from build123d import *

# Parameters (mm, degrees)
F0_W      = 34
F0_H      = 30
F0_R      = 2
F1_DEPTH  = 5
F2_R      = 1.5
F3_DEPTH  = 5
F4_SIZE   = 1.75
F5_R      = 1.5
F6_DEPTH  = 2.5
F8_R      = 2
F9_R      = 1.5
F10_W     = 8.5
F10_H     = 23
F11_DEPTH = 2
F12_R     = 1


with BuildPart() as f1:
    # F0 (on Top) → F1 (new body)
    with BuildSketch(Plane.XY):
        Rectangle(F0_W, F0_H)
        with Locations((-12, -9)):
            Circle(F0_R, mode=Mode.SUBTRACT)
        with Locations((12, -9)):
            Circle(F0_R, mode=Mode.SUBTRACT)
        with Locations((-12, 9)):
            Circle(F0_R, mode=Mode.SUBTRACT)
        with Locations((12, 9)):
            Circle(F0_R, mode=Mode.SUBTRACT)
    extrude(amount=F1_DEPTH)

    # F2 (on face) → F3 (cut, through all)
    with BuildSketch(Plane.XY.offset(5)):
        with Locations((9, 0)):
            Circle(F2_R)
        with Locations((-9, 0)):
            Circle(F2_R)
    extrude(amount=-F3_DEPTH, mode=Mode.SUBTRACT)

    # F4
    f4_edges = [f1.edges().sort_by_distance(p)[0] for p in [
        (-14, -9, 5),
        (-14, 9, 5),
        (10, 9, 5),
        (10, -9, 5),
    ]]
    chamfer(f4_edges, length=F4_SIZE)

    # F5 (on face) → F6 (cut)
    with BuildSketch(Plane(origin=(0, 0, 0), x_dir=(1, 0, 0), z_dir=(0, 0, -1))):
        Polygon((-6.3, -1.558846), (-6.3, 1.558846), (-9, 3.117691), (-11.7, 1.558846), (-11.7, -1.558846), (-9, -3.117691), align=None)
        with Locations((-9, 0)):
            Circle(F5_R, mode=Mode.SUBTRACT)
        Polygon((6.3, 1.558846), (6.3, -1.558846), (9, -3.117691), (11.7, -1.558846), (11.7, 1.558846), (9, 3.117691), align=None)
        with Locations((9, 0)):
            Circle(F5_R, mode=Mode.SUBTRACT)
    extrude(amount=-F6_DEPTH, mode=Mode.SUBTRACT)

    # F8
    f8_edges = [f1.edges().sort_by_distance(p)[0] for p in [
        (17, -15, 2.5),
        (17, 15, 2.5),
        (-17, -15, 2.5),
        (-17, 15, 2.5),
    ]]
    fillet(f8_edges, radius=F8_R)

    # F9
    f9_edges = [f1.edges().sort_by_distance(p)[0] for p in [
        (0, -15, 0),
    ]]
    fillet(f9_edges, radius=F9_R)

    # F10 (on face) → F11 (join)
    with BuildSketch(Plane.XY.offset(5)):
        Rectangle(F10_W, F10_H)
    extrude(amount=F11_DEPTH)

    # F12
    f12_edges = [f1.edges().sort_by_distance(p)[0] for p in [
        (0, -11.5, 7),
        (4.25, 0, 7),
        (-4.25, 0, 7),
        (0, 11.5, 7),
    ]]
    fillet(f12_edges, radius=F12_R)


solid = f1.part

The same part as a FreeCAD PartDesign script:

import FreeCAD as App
import Part
import Sketcher
Q = App.Units.Quantity


def edges_at(feature, points):
    """Names of the edges that pass closest to the given points."""
    edges = feature.Shape.Edges
    near = lambda p: min(range(len(edges)), key=lambda i: edges[i].distToShape(Part.Vertex(*p))[0])
    return sorted({f"Edge{near(p) + 1}" for p in points})

doc = App.newDocument("Part")
body = doc.addObject("PartDesign::Body", "Body")

# Sketch on XY plane
sketch1 = doc.addObject("Sketcher::SketchObject", "Sketch")
body.addObject(sketch1)
sketch1.AttachmentSupport = (doc.XY_Plane, [""])
sketch1.MapMode = "FlatFace"
sketch1.addGeometry([
    Part.LineSegment(App.Vector(-17, 15, 0), App.Vector(-17, -15, 0)),  # 0
    Part.LineSegment(App.Vector(-17, -15, 0), App.Vector(17, -15, 0)),  # 1
    Part.LineSegment(App.Vector(17, -15, 0), App.Vector(17, 15, 0)),  # 2
    Part.LineSegment(App.Vector(17, 15, 0), App.Vector(-17, 15, 0)),  # 3
    Part.Circle(App.Vector(-12, -9, 0), App.Vector(0, 0, 1), 2),  # 4
    Part.Circle(App.Vector(12, -9, 0), App.Vector(0, 0, 1), 2),  # 5
    Part.Circle(App.Vector(-12, 9, 0), App.Vector(0, 0, 1), 2),  # 6
    Part.Circle(App.Vector(12, 9, 0), App.Vector(0, 0, 1), 2),  # 7
], False)
sketch1.addConstraint([
    Sketcher.Constraint("Coincident", 0, 2, 1, 1),
    Sketcher.Constraint("Coincident", 1, 2, 2, 1),
    Sketcher.Constraint("Coincident", 2, 2, 3, 1),
    Sketcher.Constraint("Coincident", 3, 2, 0, 1),
    Sketcher.Constraint("Vertical", 0),
    Sketcher.Constraint("Horizontal", 1),
    Sketcher.Constraint("Vertical", 2),
    Sketcher.Constraint("Horizontal", 3),
    Sketcher.Constraint("Equal", 4, 5),
    Sketcher.Constraint("Equal", 5, 6),
    Sketcher.Constraint("Equal", 6, 7),
    Sketcher.Constraint("Symmetric", 5, 3, 6, 3, -1, 1),
    Sketcher.Constraint("Symmetric", 4, 3, 7, 3, -1, 1),
    Sketcher.Constraint("Symmetric", 0, 2, 2, 2, -1, 1),
    Sketcher.Constraint("Symmetric", 4, 3, 5, 3, -2),
    Sketcher.Constraint("Diameter", 4, 4.0),
    Sketcher.Constraint("DistanceX", 1, 1, 1, 2, 34.0),
    Sketcher.Constraint("DistanceY", 0, 2, 0, 1, 30.0),
    Sketcher.Constraint("DistanceX", 4, 3, -1, 1, 12.0),
    Sketcher.Constraint("DistanceY", 4, 3, -1, 1, 9.0),
])
pad1 = doc.addObject("PartDesign::Pad", "Pad")
body.addObject(pad1)
pad1.Profile = sketch1
pad1.Length = 5

# Sketch on XY plane
sketch2 = doc.addObject("Sketcher::SketchObject", "Sketch001")
body.addObject(sketch2)
sketch2.AttachmentSupport = (doc.XY_Plane, [""])
sketch2.MapMode = "FlatFace"
sketch2.AttachmentOffset = App.Placement(App.Vector(0, 0, 5), App.Rotation())
sketch2.addGeometry([
    Part.Circle(App.Vector(9, 0, 0), App.Vector(0, 0, 1), 1.5),
    Part.Circle(App.Vector(-9, 0, 0), App.Vector(0, 0, 1), 1.5),
], False)
sketch2.addConstraint([
    Sketcher.Constraint("Equal", 0, 1),
    Sketcher.Constraint("Symmetric", 0, 3, 1, 3, -1, 1),
    Sketcher.Constraint("PointOnObject", 0, 3, -1),
    Sketcher.Constraint("Diameter", 0, 3.0),
    Sketcher.Constraint("DistanceX", -1, 1, 0, 3, 9.0),
])
pocket1 = doc.addObject("PartDesign::Pocket", "Pocket")
body.addObject(pocket1)
pocket1.Profile = sketch2
pocket1.Type = "ThroughAll"
doc.recompute()

chamfer = doc.addObject("PartDesign::Chamfer", "Chamfer")
body.addObject(chamfer)
chamfer.Base = (pocket1, edges_at(pocket1, [
    (-14, -9, 5),
    (-14, 9, 5),
    (10, 9, 5),
    (10, -9, 5),
]))
chamfer.Size = 1.75

# Sketch on XY plane
sketch3 = doc.addObject("Sketcher::SketchObject", "Sketch002")
body.addObject(sketch3)
sketch3.AttachmentSupport = (doc.XY_Plane, [""])
sketch3.MapMode = "FlatFace"
sketch3.addGeometry([
    Part.LineSegment(App.Vector(-6.3, 1.6, 0), App.Vector(-6.3, -1.6, 0)),  # 0
    Part.LineSegment(App.Vector(-6.3, -1.6, 0), App.Vector(-9, -3.1, 0)),  # 1
    Part.LineSegment(App.Vector(-9, -3.1, 0), App.Vector(-11.7, -1.6, 0)),  # 2
    Part.LineSegment(App.Vector(-11.7, -1.6, 0), App.Vector(-11.7, 1.6, 0)),  # 3
    Part.LineSegment(App.Vector(-11.7, 1.6, 0), App.Vector(-9, 3.1, 0)),  # 4
    Part.LineSegment(App.Vector(-9, 3.1, 0), App.Vector(-6.3, 1.6, 0)),  # 5
    Part.Circle(App.Vector(-9, 0, 0), App.Vector(0, 0, 1), 1.5),  # 6
    Part.LineSegment(App.Vector(6.3, -1.6, 0), App.Vector(6.3, 1.6, 0)),  # 7
    Part.LineSegment(App.Vector(6.3, 1.6, 0), App.Vector(9, 3.1, 0)),  # 8
    Part.LineSegment(App.Vector(9, 3.1, 0), App.Vector(11.7, 1.6, 0)),  # 9
    Part.LineSegment(App.Vector(11.7, 1.6, 0), App.Vector(11.7, -1.6, 0)),  # 10
    Part.LineSegment(App.Vector(11.7, -1.6, 0), App.Vector(9, -3.1, 0)),  # 11
    Part.LineSegment(App.Vector(9, -3.1, 0), App.Vector(6.3, -1.6, 0)),  # 12
    Part.Circle(App.Vector(9, 0, 0), App.Vector(0, 0, 1), 1.5),  # 13
], False)
sketch3.addConstraint([
    Sketcher.Constraint("Coincident", 0, 2, 1, 1),
    Sketcher.Constraint("Coincident", 1, 2, 2, 1),
    Sketcher.Constraint("Coincident", 2, 2, 3, 1),
    Sketcher.Constraint("Coincident", 3, 2, 4, 1),
    Sketcher.Constraint("Coincident", 4, 2, 5, 1),
    Sketcher.Constraint("Coincident", 5, 2, 0, 1),
    Sketcher.Constraint("Coincident", 7, 2, 8, 1),
    Sketcher.Constraint("Coincident", 8, 2, 9, 1),
    Sketcher.Constraint("Coincident", 9, 2, 10, 1),
    Sketcher.Constraint("Coincident", 10, 2, 11, 1),
    Sketcher.Constraint("Coincident", 11, 2, 12, 1),
    Sketcher.Constraint("Coincident", 12, 2, 7, 1),
    Sketcher.Constraint("Vertical", 0),
    Sketcher.Constraint("Vertical", 3),
    Sketcher.Constraint("Vertical", 7),
    Sketcher.Constraint("Vertical", 10),
    Sketcher.Constraint("Equal", 6, 13),
    Sketcher.Constraint("Symmetric", 6, 3, 13, 3, -1, 1),
    Sketcher.Constraint("Symmetric", 0, 2, 7, 2, -1, 1),
    Sketcher.Constraint("Symmetric", 1, 2, 8, 2, -1, 1),
    Sketcher.Constraint("Symmetric", 2, 2, 9, 2, -1, 1),
    Sketcher.Constraint("Symmetric", 4, 2, 11, 2, -1, 1),
    Sketcher.Constraint("Symmetric", 4, 2, 8, 2, -2),
    Sketcher.Constraint("PointOnObject", 6, 3, -1),
    Sketcher.Constraint("Parallel", 1, 4),
    Sketcher.Constraint("Parallel", 2, 5),
    Sketcher.Constraint("Parallel", 8, 11),
    Sketcher.Constraint("Parallel", 9, 12),
    Sketcher.Constraint("Horizontal", 0, 2, 2, 2),
    Sketcher.Constraint("Horizontal", 3, 2, 5, 2),
    Sketcher.Constraint("Vertical", 6, 3, 1, 2),
    Sketcher.Constraint("Diameter", 6, 3.0),
    Sketcher.Constraint("Angle", 1, Q("-150.000012 deg")),
    Sketcher.Constraint("DistanceX", 6, 3, -1, 1, 9.0),
    Sketcher.Constraint("DistanceX", 0, 2, -1, 1, 6.3),
    Sketcher.Constraint("DistanceY", 0, 2, 0, 1, 3.117692),
])
pocket2 = doc.addObject("PartDesign::Pocket", "Pocket001")
body.addObject(pocket2)
pocket2.Profile = sketch3
pocket2.Length = 2.5
pocket2.Reversed = True
doc.recompute()

fillet = doc.addObject("PartDesign::Fillet", "Fillet")
body.addObject(fillet)
fillet.Base = (pocket2, edges_at(pocket2, [
    (17, -15, 2.5),
    (17, 15, 2.5),
    (-17, -15, 2.5),
    (-17, 15, 2.5),
]))
fillet.Radius = 2
doc.recompute()

fillet2 = doc.addObject("PartDesign::Fillet", "Fillet001")
body.addObject(fillet2)
fillet2.Base = (fillet, edges_at(fillet, [(0, -15, 0)]))
fillet2.Radius = 1.5

# Sketch on XY plane
sketch4 = doc.addObject("Sketcher::SketchObject", "Sketch003")
body.addObject(sketch4)
sketch4.AttachmentSupport = (doc.XY_Plane, [""])
sketch4.MapMode = "FlatFace"
sketch4.AttachmentOffset = App.Placement(App.Vector(0, 0, 5), App.Rotation())
sketch4.addGeometry([
    Part.LineSegment(App.Vector(-4, 12, 0), App.Vector(-4, -12, 0)),
    Part.LineSegment(App.Vector(-4, -12, 0), App.Vector(4, -12, 0)),
    Part.LineSegment(App.Vector(4, -12, 0), App.Vector(4, 12, 0)),
    Part.LineSegment(App.Vector(4, 12, 0), App.Vector(-4, 12, 0)),
], False)
sketch4.addConstraint([
    Sketcher.Constraint("Coincident", 0, 2, 1, 1),
    Sketcher.Constraint("Coincident", 1, 2, 2, 1),
    Sketcher.Constraint("Coincident", 2, 2, 3, 1),
    Sketcher.Constraint("Coincident", 3, 2, 0, 1),
    Sketcher.Constraint("Vertical", 0),
    Sketcher.Constraint("Horizontal", 1),
    Sketcher.Constraint("Vertical", 2),
    Sketcher.Constraint("Horizontal", 3),
    Sketcher.Constraint("Symmetric", 0, 2, 2, 2, -1, 1),
    Sketcher.Constraint("DistanceY", 0, 2, 0, 1, 23.0),
    Sketcher.Constraint("DistanceX", 1, 1, 1, 2, 8.5),
])
pad2 = doc.addObject("PartDesign::Pad", "Pad001")
body.addObject(pad2)
pad2.Profile = sketch4
pad2.Length = 2
doc.recompute()

fillet3 = doc.addObject("PartDesign::Fillet", "Fillet002")
body.addObject(fillet3)
fillet3.Base = (pad2, edges_at(pad2, [
    (0, -11.5, 7),
    (4.25, 0, 7),
    (-4.25, 0, 7),
    (0, 11.5, 7),
]))
fillet3.Radius = 1

doc.recompute()
